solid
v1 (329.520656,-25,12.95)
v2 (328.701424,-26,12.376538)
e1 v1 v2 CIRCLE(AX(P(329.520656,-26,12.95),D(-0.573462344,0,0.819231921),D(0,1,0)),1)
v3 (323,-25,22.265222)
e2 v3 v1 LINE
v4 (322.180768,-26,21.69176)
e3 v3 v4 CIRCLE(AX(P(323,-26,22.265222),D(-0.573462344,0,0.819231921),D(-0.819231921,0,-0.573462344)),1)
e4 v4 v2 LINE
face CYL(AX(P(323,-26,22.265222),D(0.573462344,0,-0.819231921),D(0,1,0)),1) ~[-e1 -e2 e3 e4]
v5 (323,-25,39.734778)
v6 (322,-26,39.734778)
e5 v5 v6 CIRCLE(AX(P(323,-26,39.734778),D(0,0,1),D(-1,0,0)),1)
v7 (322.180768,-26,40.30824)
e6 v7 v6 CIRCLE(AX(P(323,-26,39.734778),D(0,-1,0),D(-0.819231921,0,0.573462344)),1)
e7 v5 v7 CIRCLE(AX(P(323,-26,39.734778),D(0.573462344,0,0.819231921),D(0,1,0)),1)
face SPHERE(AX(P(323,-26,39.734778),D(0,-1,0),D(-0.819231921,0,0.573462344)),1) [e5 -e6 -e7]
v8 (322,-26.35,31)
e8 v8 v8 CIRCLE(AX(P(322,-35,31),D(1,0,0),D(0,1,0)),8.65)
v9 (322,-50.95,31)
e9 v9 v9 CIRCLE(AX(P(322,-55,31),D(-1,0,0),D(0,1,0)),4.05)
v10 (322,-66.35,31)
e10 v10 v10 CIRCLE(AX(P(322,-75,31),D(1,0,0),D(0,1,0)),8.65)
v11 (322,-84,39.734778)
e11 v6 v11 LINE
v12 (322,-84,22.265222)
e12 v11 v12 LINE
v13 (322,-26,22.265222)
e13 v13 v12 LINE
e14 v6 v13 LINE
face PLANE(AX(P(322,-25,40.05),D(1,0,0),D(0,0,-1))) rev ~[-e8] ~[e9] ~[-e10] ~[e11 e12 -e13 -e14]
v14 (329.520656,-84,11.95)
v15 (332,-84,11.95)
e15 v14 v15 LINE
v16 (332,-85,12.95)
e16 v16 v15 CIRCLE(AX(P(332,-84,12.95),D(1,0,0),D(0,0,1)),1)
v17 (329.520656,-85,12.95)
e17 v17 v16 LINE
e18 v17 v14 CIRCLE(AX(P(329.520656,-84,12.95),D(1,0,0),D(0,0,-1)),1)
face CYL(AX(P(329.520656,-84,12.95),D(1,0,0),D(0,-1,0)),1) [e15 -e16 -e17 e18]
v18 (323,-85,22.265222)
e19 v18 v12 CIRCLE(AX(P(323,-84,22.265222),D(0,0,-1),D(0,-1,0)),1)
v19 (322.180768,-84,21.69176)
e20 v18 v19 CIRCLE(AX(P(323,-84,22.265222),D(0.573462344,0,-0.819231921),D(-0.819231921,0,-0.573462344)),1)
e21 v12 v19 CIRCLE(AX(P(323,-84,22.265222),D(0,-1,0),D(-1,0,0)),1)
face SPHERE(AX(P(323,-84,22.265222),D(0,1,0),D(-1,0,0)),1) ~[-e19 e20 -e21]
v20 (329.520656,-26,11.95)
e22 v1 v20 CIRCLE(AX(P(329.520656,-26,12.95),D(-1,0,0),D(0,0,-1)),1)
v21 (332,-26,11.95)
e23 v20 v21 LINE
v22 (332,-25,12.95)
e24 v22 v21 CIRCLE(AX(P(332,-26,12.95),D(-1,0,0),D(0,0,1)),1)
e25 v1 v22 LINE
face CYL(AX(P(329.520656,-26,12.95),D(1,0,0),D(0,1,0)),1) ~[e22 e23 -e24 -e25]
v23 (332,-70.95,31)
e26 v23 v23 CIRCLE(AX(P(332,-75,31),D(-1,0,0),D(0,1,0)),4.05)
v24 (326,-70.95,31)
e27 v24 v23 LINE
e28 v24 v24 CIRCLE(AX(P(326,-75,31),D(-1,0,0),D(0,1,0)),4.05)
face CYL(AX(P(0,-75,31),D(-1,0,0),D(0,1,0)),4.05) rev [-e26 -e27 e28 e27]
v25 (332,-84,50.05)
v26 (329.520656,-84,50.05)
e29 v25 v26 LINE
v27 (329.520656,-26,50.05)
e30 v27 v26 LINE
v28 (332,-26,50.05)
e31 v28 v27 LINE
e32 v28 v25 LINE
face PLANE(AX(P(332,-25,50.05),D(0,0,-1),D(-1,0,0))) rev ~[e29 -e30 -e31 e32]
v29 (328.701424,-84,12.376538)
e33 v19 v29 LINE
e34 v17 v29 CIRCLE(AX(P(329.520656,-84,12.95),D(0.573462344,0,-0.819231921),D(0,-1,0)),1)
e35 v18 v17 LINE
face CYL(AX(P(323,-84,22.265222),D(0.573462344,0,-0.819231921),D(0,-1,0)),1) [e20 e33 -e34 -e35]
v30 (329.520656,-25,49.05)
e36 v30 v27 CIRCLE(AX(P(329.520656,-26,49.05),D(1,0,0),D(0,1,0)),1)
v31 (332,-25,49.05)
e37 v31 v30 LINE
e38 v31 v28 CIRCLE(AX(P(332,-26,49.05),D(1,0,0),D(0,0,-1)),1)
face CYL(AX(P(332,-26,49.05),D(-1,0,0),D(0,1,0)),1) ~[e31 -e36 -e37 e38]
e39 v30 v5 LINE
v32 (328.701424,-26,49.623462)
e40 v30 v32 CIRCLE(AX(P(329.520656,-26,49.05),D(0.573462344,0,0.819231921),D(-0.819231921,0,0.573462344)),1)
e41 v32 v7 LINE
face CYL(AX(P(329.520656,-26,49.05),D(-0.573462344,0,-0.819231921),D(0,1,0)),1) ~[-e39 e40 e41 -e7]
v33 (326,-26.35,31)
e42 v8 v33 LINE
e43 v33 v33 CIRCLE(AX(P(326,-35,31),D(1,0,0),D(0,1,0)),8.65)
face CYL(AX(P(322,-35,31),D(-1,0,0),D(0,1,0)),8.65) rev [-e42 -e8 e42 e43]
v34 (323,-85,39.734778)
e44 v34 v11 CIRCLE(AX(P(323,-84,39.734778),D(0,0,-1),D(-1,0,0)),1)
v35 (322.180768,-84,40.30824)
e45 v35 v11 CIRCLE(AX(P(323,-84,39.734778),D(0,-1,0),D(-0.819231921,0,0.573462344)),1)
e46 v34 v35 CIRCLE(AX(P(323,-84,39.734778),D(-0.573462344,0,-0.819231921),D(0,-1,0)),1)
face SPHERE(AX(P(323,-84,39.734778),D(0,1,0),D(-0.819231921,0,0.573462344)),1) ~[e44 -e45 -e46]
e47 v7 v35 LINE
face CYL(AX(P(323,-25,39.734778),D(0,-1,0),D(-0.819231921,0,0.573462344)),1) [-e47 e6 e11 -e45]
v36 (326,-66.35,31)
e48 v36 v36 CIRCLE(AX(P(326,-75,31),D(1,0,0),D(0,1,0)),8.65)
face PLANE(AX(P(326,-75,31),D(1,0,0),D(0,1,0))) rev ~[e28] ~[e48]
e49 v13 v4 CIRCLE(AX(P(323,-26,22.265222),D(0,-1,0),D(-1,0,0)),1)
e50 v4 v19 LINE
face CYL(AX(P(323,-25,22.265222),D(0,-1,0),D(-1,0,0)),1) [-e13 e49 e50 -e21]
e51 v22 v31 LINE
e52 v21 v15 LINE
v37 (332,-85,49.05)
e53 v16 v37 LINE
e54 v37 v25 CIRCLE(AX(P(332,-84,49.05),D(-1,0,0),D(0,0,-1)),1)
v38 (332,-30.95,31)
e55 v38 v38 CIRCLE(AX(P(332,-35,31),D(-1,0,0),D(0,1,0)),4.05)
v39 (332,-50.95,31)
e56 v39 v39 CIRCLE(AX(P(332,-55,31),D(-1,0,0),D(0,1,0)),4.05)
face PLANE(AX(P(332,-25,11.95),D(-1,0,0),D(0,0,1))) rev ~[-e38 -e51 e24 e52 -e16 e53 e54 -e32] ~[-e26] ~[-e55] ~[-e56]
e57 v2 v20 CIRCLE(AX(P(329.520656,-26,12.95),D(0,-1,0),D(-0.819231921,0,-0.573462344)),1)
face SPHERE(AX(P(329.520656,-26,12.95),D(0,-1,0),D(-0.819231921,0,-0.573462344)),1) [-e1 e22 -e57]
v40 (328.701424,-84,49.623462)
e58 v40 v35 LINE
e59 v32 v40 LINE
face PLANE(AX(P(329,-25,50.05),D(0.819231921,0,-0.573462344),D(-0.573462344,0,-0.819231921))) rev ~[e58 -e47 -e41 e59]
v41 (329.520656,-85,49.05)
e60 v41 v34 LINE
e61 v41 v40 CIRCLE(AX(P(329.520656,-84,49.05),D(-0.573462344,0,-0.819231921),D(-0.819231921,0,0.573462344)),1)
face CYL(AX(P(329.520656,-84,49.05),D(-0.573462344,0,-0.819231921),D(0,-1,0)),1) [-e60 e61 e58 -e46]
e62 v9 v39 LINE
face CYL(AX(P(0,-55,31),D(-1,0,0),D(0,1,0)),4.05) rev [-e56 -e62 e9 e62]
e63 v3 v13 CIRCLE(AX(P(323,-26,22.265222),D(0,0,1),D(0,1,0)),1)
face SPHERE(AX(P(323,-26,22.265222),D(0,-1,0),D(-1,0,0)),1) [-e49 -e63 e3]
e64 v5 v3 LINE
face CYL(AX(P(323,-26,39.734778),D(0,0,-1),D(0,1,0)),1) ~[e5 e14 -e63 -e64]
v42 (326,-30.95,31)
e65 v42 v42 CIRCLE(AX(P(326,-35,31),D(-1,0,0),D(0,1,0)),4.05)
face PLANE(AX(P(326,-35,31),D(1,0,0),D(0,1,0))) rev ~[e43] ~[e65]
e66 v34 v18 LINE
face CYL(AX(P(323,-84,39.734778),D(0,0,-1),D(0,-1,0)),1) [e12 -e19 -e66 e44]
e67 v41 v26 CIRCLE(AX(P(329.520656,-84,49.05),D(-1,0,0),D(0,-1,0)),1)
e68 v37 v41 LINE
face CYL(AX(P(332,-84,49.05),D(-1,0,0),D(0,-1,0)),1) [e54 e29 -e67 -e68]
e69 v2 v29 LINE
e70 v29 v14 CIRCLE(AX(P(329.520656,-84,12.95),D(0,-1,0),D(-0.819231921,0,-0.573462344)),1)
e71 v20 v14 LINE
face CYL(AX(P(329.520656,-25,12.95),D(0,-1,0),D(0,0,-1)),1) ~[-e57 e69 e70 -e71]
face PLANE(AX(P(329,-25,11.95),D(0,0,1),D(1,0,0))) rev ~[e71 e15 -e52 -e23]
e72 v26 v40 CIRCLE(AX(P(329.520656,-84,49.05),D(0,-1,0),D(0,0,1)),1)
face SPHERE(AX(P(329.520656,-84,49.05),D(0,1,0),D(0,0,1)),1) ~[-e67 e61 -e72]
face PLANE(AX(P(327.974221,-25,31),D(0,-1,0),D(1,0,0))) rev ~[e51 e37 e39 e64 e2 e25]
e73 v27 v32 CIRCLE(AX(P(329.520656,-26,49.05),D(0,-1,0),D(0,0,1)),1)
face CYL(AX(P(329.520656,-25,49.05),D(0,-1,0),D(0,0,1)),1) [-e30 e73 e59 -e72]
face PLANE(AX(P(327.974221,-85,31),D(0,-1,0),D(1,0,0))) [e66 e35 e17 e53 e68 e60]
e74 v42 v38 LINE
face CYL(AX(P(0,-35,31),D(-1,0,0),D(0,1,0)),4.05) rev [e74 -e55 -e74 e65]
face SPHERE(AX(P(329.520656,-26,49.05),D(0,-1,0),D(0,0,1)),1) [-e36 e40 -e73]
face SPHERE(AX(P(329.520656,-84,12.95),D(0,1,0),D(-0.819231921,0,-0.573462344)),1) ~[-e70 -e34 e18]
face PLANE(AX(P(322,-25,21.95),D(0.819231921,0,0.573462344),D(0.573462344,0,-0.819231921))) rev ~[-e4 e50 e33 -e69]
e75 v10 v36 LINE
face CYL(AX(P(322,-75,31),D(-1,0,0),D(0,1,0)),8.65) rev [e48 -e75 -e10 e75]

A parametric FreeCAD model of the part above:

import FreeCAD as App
import Part
import Sketcher


def edges_at(feature, points):
    """Names of the edges that pass closest to the given points."""
    edges = feature.Shape.Edges
    near = lambda p: min(range(len(edges)), key=lambda i: edges[i].distToShape(Part.Vertex(*p))[0])
    return sorted({f"Edge{near(p) + 1}" for p in points})


def add_polygon(sketch, points):
    """Adds a closed chain of lines whose ends are joined by coincident constraints."""
    first, n = sketch.GeometryCount, len(points)
    for a, b in zip(points, points[1:] + points[:1]):
        sketch.addGeometry(Part.LineSegment(App.Vector(*a, 0), App.Vector(*b, 0)), False)
    for i in range(n):
        sketch.addConstraint(Sketcher.Constraint("Coincident", first + i, 2, first + (i + 1) % n, 1))

doc = App.newDocument("Part")
params = doc.addObject("Spreadsheet::Sheet", "Params")
for row, (alias, value) in enumerate([
    ("sketch1_width", "3 mm"),
    ("sketch1_height", "18.1 mm"),
    ("sketch1_height2", "38.1 mm"),
    ("pad1_length", "60 mm"),
    ("sketch2_diameter", "8.1 mm"),
    ("sketch3_diameter", "17.3 mm"),
    ("pocket2_length", "4 mm"),
    ("sketch4_diameter", "8.1 mm"),
    ("fillet_radius", "1 mm"),
    ("fillet2_radius", "1 mm"),
], start=1):
    params.set(f"A{row}", alias)
    params.set(f"B{row}", "=" + value)
    params.setAlias(f"B{row}", alias)

body = doc.addObject("PartDesign::Body", "Body")

sketch1 = body.newObject("Sketcher::SketchObject", "Sketch")
sketch1.AttachmentSupport = (doc.getObject("XZ_Plane"), [""])
sketch1.MapMode = "FlatFace"
sketch1.AttachmentOffset = App.Placement(App.Vector(0, 0, 25), App.Rotation())
add_polygon(sketch1, [(332, 50), (329, 50), (322, 40), (322, 21.9), (329, 11.9), (332, 11.9)])
sketch1.addConstraint(Sketcher.Constraint("Horizontal", 0))
sketch1.addConstraint(Sketcher.Constraint("Vertical", 2))
sketch1.addConstraint(Sketcher.Constraint("Horizontal", 4))
sketch1.addConstraint(Sketcher.Constraint("Vertical", 5))
sketch1.addConstraint(Sketcher.Constraint("Vertical", 0, 2, 3, 2))
sketch1.addConstraint(Sketcher.Constraint("Equal", 1, 3))
sketch1.addConstraint(Sketcher.Constraint("DistanceX", 0, 2, 0, 1, 3.0))
sketch1.addConstraint(Sketcher.Constraint("DistanceY", 2, 2, 2, 1, 18.1))
sketch1.addConstraint(Sketcher.Constraint("DistanceY", 5, 1, 5, 2, 38.1))
sketch1.addConstraint(Sketcher.Constraint("DistanceX", -1, 1, 0, 2, 329.0))
sketch1.addConstraint(Sketcher.Constraint("DistanceX", -1, 1, 1, 2, 322.0))
sketch1.addConstraint(Sketcher.Constraint("DistanceY", -1, 1, 0, 2, 50.05))
sketch1.setExpression("Constraints[12]", "Params.sketch1_width")
sketch1.setExpression("Constraints[13]", "Params.sketch1_height")
sketch1.setExpression("Constraints[14]", "Params.sketch1_height2")
pad1 = body.newObject("PartDesign::Pad", "Pad")
pad1.Profile = sketch1
pad1.setExpression("Length", "Params.pad1_length")

sketch2 = body.newObject("Sketcher::SketchObject", "Sketch001")
sketch2.AttachmentSupport = (doc.getObject("YZ_Plane"), [""])
sketch2.MapMode = "FlatFace"
sketch2.addGeometry(Part.Circle(App.Vector(-75, 31, 0), App.Vector(0, 0, 1), 4), False)
sketch2.addGeometry(Part.Circle(App.Vector(-35, 31, 0), App.Vector(0, 0, 1), 4), False)
sketch2.addConstraint(Sketcher.Constraint("Equal", 0, 1))
sketch2.addConstraint(Sketcher.Constraint("Horizontal", 0, 3, 1, 3))
sketch2.addConstraint(Sketcher.Constraint("Diameter", 0, 8.1))
sketch2.addConstraint(Sketcher.Constraint("DistanceX", 0, 3, -1, 1, 75.0))
sketch2.addConstraint(Sketcher.Constraint("DistanceY", -1, 1, 0, 3, 31.0))
sketch2.addConstraint(Sketcher.Constraint("DistanceX", 1, 3, -1, 1, 35.0))
sketch2.setExpression("Constraints[2]", "Params.sketch2_diameter")
pocket1 = body.newObject("PartDesign::Pocket", "Pocket")
pocket1.Profile = sketch2
pocket1.Type = "ThroughAll"
pocket1.Reversed = True

sketch3 = body.newObject("Sketcher::SketchObject", "Sketch002")
sketch3.AttachmentSupport = (doc.getObject("YZ_Plane"), [""])
sketch3.MapMode = "FlatFace"
sketch3.AttachmentOffset = App.Placement(App.Vector(0, 0, 322), App.Rotation())
sketch3.addGeometry(Part.Circle(App.Vector(-75, 31, 0), App.Vector(0, 0, 1), 9), False)
sketch3.addGeometry(Part.Circle(App.Vector(-35, 31, 0), App.Vector(0, 0, 1), 9), False)
sketch3.addConstraint(Sketcher.Constraint("Equal", 0, 1))
sketch3.addConstraint(Sketcher.Constraint("Horizontal", 0, 3, 1, 3))
sketch3.addConstraint(Sketcher.Constraint("Diameter", 0, 17.3))
sketch3.addConstraint(Sketcher.Constraint("DistanceX", 0, 3, -1, 1, 75.0))
sketch3.addConstraint(Sketcher.Constraint("DistanceY", -1, 1, 0, 3, 31.0))
sketch3.addConstraint(Sketcher.Constraint("DistanceX", 1, 3, -1, 1, 35.0))
sketch3.setExpression("Constraints[2]", "Params.sketch3_diameter")
pocket2 = body.newObject("PartDesign::Pocket", "Pocket001")
pocket2.Profile = sketch3
pocket2.setExpression("Length", "Params.pocket2_length")
pocket2.Reversed = True

sketch4 = body.newObject("Sketcher::SketchObject", "Sketch003")
sketch4.AttachmentSupport = (doc.getObject("YZ_Plane"), [""])
sketch4.MapMode = "FlatFace"
sketch4.addGeometry(Part.Circle(App.Vector(-55, 31, 0), App.Vector(0, 0, 1), 4), False)
sketch4.addConstraint(Sketcher.Constraint("Diameter", 0, 8.1))
sketch4.addConstraint(Sketcher.Constraint("DistanceX", 0, 3, -1, 1, 55.0))
sketch4.addConstraint(Sketcher.Constraint("DistanceY", -1, 1, 0, 3, 31.0))
sketch4.setExpression("Constraints[0]", "Params.sketch4_diameter")
pocket3 = body.newObject("PartDesign::Pocket", "Pocket002")
pocket3.Profile = sketch4
pocket3.Type = "ThroughAll"
pocket3.Reversed = True
doc.recompute()

fillet = body.newObject("PartDesign::Fillet", "Fillet")
fillet.Base = (pocket3, edges_at(pocket3, [
    (329, -55, 11.95),
    (322, -55, 21.95),
    (322, -55, 40.05),
    (329, -55, 50.05),
]))
fillet.setExpression("Radius", "Params.fillet_radius")
doc.recompute()

fillet2 = body.newObject("PartDesign::Fillet", "Fillet001")
fillet2.Base = (fillet, edges_at(fillet, [
    (325.441, -25, 44.966),
    (322, -25, 31),
    (325.441, -25, 17.034),
    (325.441, -85, 17.034),
    (322, -85, 31),
    (325.441, -85, 44.966),
]))
fillet2.setExpression("Radius", "Params.fillet2_radius")

doc.recompute()
